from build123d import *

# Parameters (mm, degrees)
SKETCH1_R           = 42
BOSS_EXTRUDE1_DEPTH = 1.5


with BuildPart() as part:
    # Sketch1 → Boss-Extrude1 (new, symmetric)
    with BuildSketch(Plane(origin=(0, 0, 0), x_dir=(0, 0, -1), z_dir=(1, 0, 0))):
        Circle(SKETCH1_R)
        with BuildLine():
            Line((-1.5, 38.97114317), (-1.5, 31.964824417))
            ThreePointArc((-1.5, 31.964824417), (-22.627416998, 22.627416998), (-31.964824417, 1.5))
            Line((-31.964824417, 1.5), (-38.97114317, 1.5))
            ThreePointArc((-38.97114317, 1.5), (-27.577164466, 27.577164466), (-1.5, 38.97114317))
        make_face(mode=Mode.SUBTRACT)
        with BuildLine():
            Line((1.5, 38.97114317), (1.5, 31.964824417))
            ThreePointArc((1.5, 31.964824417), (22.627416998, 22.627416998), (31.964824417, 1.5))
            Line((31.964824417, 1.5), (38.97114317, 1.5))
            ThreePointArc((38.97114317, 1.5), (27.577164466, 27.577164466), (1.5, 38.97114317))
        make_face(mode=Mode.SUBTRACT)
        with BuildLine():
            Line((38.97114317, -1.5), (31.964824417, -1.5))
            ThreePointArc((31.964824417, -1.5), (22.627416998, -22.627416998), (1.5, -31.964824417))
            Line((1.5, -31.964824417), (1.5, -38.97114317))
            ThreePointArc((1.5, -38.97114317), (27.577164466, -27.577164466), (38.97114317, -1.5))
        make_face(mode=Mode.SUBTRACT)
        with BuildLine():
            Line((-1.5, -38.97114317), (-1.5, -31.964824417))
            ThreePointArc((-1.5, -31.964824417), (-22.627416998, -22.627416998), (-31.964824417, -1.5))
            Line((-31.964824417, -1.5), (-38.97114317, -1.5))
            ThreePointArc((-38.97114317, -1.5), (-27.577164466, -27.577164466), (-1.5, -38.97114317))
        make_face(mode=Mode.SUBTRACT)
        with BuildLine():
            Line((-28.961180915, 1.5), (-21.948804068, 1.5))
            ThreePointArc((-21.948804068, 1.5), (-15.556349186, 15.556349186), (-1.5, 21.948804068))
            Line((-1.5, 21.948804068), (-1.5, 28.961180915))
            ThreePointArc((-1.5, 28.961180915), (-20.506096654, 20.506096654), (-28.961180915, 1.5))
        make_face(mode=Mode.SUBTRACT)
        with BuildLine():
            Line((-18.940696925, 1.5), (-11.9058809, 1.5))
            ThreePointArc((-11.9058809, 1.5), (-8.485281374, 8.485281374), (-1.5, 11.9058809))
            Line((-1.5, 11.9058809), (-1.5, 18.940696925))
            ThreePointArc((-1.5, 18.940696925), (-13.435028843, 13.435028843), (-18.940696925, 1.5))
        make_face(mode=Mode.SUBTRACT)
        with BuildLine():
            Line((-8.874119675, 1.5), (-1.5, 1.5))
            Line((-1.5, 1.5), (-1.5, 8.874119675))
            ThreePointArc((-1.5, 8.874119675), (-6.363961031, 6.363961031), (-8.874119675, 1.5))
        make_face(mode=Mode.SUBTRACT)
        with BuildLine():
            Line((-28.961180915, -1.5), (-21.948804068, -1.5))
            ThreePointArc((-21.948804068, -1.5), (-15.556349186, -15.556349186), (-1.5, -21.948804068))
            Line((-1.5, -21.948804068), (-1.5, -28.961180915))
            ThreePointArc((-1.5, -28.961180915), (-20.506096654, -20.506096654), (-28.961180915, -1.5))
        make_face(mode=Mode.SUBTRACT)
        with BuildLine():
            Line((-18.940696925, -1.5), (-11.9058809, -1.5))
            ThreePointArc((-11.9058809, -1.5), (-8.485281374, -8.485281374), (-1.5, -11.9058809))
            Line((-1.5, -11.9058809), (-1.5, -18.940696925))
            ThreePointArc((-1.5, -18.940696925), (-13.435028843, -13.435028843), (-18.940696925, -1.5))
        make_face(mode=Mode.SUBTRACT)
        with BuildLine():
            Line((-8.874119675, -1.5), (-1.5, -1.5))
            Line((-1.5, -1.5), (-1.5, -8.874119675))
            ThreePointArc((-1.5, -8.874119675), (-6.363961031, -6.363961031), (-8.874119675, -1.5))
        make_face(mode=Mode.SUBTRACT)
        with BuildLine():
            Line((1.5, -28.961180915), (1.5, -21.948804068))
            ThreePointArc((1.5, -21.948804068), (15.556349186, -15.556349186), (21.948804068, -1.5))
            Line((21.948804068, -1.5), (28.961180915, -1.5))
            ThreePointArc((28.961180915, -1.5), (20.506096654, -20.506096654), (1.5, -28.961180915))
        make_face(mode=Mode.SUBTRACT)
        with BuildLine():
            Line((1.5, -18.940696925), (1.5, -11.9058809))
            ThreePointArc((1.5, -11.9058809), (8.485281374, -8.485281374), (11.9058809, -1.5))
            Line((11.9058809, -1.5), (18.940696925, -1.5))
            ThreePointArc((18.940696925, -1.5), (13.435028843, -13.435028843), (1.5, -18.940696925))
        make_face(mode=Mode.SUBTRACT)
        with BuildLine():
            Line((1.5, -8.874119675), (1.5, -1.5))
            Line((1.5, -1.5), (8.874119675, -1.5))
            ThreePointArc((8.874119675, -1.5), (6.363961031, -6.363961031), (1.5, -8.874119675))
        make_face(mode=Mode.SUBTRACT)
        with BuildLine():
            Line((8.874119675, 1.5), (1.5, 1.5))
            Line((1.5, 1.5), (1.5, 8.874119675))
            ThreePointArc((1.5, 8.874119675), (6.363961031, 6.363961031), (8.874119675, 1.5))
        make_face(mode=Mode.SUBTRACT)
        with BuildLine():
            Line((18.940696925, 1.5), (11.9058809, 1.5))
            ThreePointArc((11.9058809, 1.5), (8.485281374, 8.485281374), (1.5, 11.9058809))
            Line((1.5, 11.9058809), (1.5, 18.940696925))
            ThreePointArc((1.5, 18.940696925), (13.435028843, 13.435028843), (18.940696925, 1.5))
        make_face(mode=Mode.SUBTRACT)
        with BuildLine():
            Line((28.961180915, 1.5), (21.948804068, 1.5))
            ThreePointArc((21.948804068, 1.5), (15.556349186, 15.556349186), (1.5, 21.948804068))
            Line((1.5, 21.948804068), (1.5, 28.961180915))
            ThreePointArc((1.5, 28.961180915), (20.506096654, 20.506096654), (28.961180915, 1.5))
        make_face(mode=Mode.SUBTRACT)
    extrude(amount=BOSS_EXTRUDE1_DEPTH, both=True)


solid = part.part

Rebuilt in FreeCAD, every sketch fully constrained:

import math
import FreeCAD as App
import Part
import Sketcher

V = App.Vector

doc = App.newDocument("Part")
params = doc.addObject("Spreadsheet::Sheet", "Params")
for row, (alias, value) in enumerate([
    ("sketch1_diameter", "84 mm"),
    ("sketch1_radius", "39 mm"),
    ("sketch1_radius2", "32 mm"),
    ("sketch1_radius3", "29 mm"),
    ("sketch1_radius4", "22 mm"),
    ("pad1_length", "3 mm"),
], start=1):
    params.set(f"A{row}", alias)
    params.set(f"B{row}", "=" + value)
    params.setAlias(f"B{row}", alias)

body = doc.addObject("PartDesign::Body", "Body")

# Sketch on YZ plane
sketch1 = doc.addObject("Sketcher::SketchObject", "Sketch")
body.addObject(sketch1)
sketch1.AttachmentSupport = (doc.YZ_Plane, [""])
sketch1.MapMode = "FlatFace"
sketch1.addGeometry(Part.Circle(V(0, 0, 0), V(0, 0, 1), 42), False)
sketch1.addGeometry(Part.LineSegment(V(-32, 2, 0), V(-39, 2, 0)), False)
sketch1.addGeometry(Part.ArcOfCircle(Part.Circle(V(0, 0, 0), V(0, 0, 1), 39), math.radians(92), math.radians(178)), False)
sketch1.addGeometry(Part.LineSegment(V(-2, 39, 0), V(-2, 32, 0)), False)
sketch1.addGeometry(Part.ArcOfCircle(Part.Circle(V(0, 0, 0), V(0, 0, 1), 32), math.radians(93), math.radians(177)), False)
sketch1.addGeometry(Part.ArcOfCircle(Part.Circle(V(0, 0, 0), V(0, 0, 1), 29), math.radians(93), math.radians(177)), False)
sketch1.addGeometry(Part.LineSegment(V(-2, 29, 0), V(-2, 22, 0)), False)
sketch1.addGeometry(Part.ArcOfCircle(Part.Circle(V(0, 0, 0), V(0, 0, 1), 22), math.radians(94), math.radians(176)), False)
sketch1.addGeometry(Part.LineSegment(V(-22, 2, 0), V(-29, 2, 0)), False)
sketch1.addGeometry(Part.ArcOfCircle(Part.Circle(V(0, 0, 0), V(0, 0, 1), 19), math.radians(95), math.radians(175)), False)
sketch1.addGeometry(Part.LineSegment(V(-2, 19, 0), V(-2, 12, 0)), False)
sketch1.addGeometry(Part.ArcOfCircle(Part.Circle(V(0, 0, 0), V(0, 0, 1), 12), math.radians(97), math.radians(173)), False)
sketch1.addGeometry(Part.LineSegment(V(-12, 2, 0), V(-19, 2, 0)), False)
sketch1.addGeometry(Part.ArcOfCircle(Part.Circle(V(0, 0, 0), V(0, 0, 1), 9), math.radians(100), math.radians(170)), False)
sketch1.addGeometry(Part.LineSegment(V(-2, 9, 0), V(-2, 2, 0)), False)
sketch1.addGeometry(Part.LineSegment(V(-2, 2, 0), V(-9, 2, 0)), False)
sketch1.addGeometry(Part.LineSegment(V(-2, -32, 0), V(-2, -39, 0)), False)
sketch1.addGeometry(Part.ArcOfCircle(Part.Circle(V(0, 0, 0), V(0, 0, 1), 39), math.radians(-178), math.radians(-92)), False)
sketch1.addGeometry(Part.LineSegment(V(-39, -2, 0), V(-32, -2, 0)), False)
sketch1.addGeometry(Part.ArcOfCircle(Part.Circle(V(0, 0, 0), V(0, 0, 1), 32), math.radians(-177), math.radians(-93)), False)
sketch1.addGeometry(Part.ArcOfCircle(Part.Circle(V(0, 0, 0), V(0, 0, 1), 29), math.radians(-177), math.radians(-93)), False)
sketch1.addGeometry(Part.LineSegment(V(-29, -2, 0), V(-22, -2, 0)), False)
sketch1.addGeometry(Part.ArcOfCircle(Part.Circle(V(0, 0, 0), V(0, 0, 1), 22), math.radians(-176), math.radians(-94)), False)
sketch1.addGeometry(Part.LineSegment(V(-2, -22, 0), V(-2, -29, 0)), False)
sketch1.addGeometry(Part.ArcOfCircle(Part.Circle(V(0, 0, 0), V(0, 0, 1), 19), math.radians(-175), math.radians(-95)), False)
sketch1.addGeometry(Part.LineSegment(V(-19, -2, 0), V(-12, -2, 0)), False)
sketch1.addGeometry(Part.ArcOfCircle(Part.Circle(V(0, 0, 0), V(0, 0, 1), 12), math.radians(-173), math.radians(-97)), False)
sketch1.addGeometry(Part.LineSegment(V(-2, -12, 0), V(-2, -19, 0)), False)
sketch1.addGeometry(Part.ArcOfCircle(Part.Circle(V(0, 0, 0), V(0, 0, 1), 9), math.radians(-170), math.radians(-100)), False)
sketch1.addGeometry(Part.LineSegment(V(-9, -2, 0), V(-2, -2, 0)), False)
sketch1.addGeometry(Part.LineSegment(V(-2, -2, 0), V(-2, -9, 0)), False)
sketch1.addGeometry(Part.LineSegment(V(2, 2, 0), V(2, 9, 0)), False)
sketch1.addGeometry(Part.ArcOfCircle(Part.Circle(V(0, 0, 0), V(0, 0, 1), 9), math.radians(10), math.radians(80)), False)
sketch1.addGeometry(Part.LineSegment(V(9, 2, 0), V(2, 2, 0)), False)
sketch1.addGeometry(Part.LineSegment(V(2, 12, 0), V(2, 19, 0)), False)
sketch1.addGeometry(Part.ArcOfCircle(Part.Circle(V(0, 0, 0), V(0, 0, 1), 19), math.radians(5), math.radians(85)), False)
sketch1.addGeometry(Part.LineSegment(V(19, 2, 0), V(12, 2, 0)), False)
sketch1.addGeometry(Part.ArcOfCircle(Part.Circle(V(0, 0, 0), V(0, 0, 1), 12), math.radians(7), math.radians(83)), False)
sketch1.addGeometry(Part.LineSegment(V(2, 22, 0), V(2, 29, 0)), False)
sketch1.addGeometry(Part.ArcOfCircle(Part.Circle(V(0, 0, 0), V(0, 0, 1), 29), math.radians(3), math.radians(87)), False)
sketch1.addGeometry(Part.LineSegment(V(29, 2, 0), V(22, 2, 0)), False)
sketch1.addGeometry(Part.ArcOfCircle(Part.Circle(V(0, 0, 0), V(0, 0, 1), 22), math.radians(4), math.radians(86)), False)
sketch1.addGeometry(Part.ArcOfCircle(Part.Circle(V(0, 0, 0), V(0, 0, 1), 39), math.radians(2), math.radians(88)), False)
sketch1.addGeometry(Part.LineSegment(V(39, 2, 0), V(32, 2, 0)), False)
sketch1.addGeometry(Part.ArcOfCircle(Part.Circle(V(0, 0, 0), V(0, 0, 1), 32), math.radians(3), math.radians(87)), False)
sketch1.addGeometry(Part.LineSegment(V(2, 32, 0), V(2, 39, 0)), False)
sketch1.addGeometry(Part.ArcOfCircle(Part.Circle(V(0, 0, 0), V(0, 0, 1), 9), math.radians(-80), math.radians(-10)), False)
sketch1.addGeometry(Part.LineSegment(V(2, -9, 0), V(2, -2, 0)), False)
sketch1.addGeometry(Part.LineSegment(V(2, -2, 0), V(9, -2, 0)), False)
sketch1.addGeometry(Part.ArcOfCircle(Part.Circle(V(0, 0, 0), V(0, 0, 1), 19), math.radians(-85), math.radians(-5)), False)
sketch1.addGeometry(Part.LineSegment(V(2, -19, 0), V(2, -12, 0)), False)
sketch1.addGeometry(Part.ArcOfCircle(Part.Circle(V(0, 0, 0), V(0, 0, 1), 12), math.radians(-83), math.radians(-7)), False)
sketch1.addGeometry(Part.LineSegment(V(12, -2, 0), V(19, -2, 0)), False)
sketch1.addGeometry(Part.ArcOfCircle(Part.Circle(V(0, 0, 0), V(0, 0, 1), 29), math.radians(-87), math.radians(-3)), False)
sketch1.addGeometry(Part.LineSegment(V(2, -29, 0), V(2, -22, 0)), False)
sketch1.addGeometry(Part.ArcOfCircle(Part.Circle(V(0, 0, 0), V(0, 0, 1), 22), math.radians(-86), math.radians(-4)), False)
sketch1.addGeometry(Part.LineSegment(V(22, -2, 0), V(29, -2, 0)), False)
sketch1.addGeometry(Part.LineSegment(V(32, -2, 0), V(39, -2, 0)), False)
sketch1.addGeometry(Part.ArcOfCircle(Part.Circle(V(0, 0, 0), V(0, 0, 1), 39), math.radians(-88), math.radians(-2)), False)
sketch1.addGeometry(Part.LineSegment(V(2, -39, 0), V(2, -32, 0)), False)
sketch1.addGeometry(Part.ArcOfCircle(Part.Circle(V(0, 0, 0), V(0, 0, 1), 32), math.radians(-87), math.radians(-3)), False)
sketch1.addConstraint(Sketcher.Constraint("Coincident", 1, 2, 2, 2))
sketch1.addConstraint(Sketcher.Constraint("Coincident", 2, 1, 3, 1))
sketch1.addConstraint(Sketcher.Constraint("Coincident", 3, 2, 4, 1))
sketch1.addConstraint(Sketcher.Constraint("Coincident", 4, 2, 1, 1))
sketch1.addConstraint(Sketcher.Constraint("Coincident", 5, 1, 6, 1))
sketch1.addConstraint(Sketcher.Constraint("Coincident", 6, 2, 7, 1))
sketch1.addConstraint(Sketcher.Constraint("Coincident", 7, 2, 8, 1))
sketch1.addConstraint(Sketcher.Constraint("Coincident", 8, 2, 5, 2))
sketch1.addConstraint(Sketcher.Constraint("Coincident", 9, 1, 10, 1))
sketch1.addConstraint(Sketcher.Constraint("Coincident", 10, 2, 11, 1))
sketch1.addConstraint(Sketcher.Constraint("Coincident", 11, 2, 12, 1))
sketch1.addConstraint(Sketcher.Constraint("Coincident", 12, 2, 9, 2))
sketch1.addConstraint(Sketcher.Constraint("Coincident", 13, 1, 14, 1))
sketch1.addConstraint(Sketcher.Constraint("Coincident", 14, 2, 15, 1))
sketch1.addConstraint(Sketcher.Constraint("Coincident", 15, 2, 13, 2))
sketch1.addConstraint(Sketcher.Constraint("Coincident", 16, 2, 17, 2))
sketch1.addConstraint(Sketcher.Constraint("Coincident", 17, 1, 18, 1))
sketch1.addConstraint(Sketcher.Constraint("Coincident", 18, 2, 19, 1))
sketch1.addConstraint(Sketcher.Constraint("Coincident", 19, 2, 16, 1))
sketch1.addConstraint(Sketcher.Constraint("Coincident", 20, 1, 21, 1))
sketch1.addConstraint(Sketcher.Constraint("Coincident", 21, 2, 22, 1))
sketch1.addConstraint(Sketcher.Constraint("Coincident", 22, 2, 23, 1))
sketch1.addConstraint(Sketcher.Constraint("Coincident", 23, 2, 20, 2))
sketch1.addConstraint(Sketcher.Constraint("Coincident", 24, 1, 25, 1))
sketch1.addConstraint(Sketcher.Constraint("Coincident", 25, 2, 26, 1))
sketch1.addConstraint(Sketcher.Constraint("Coincident", 26, 2, 27, 1))
sketch1.addConstraint(Sketcher.Constraint("Coincident", 27, 2, 24, 2))
sketch1.addConstraint(Sketcher.Constraint("Coincident", 28, 1, 29, 1))
sketch1.addConstraint(Sketcher.Constraint("Coincident", 29, 2, 30, 1))
sketch1.addConstraint(Sketcher.Constraint("Coincident", 30, 2, 28, 2))
sketch1.addConstraint(Sketcher.Constraint("Coincident", 31, 2, 32, 2))
sketch1.addConstraint(Sketcher.Constraint("Coincident", 32, 1, 33, 1))
sketch1.addConstraint(Sketcher.Constraint("Coincident", 33, 2, 31, 1))
sketch1.addConstraint(Sketcher.Constraint("Coincident", 34, 2, 35, 2))
sketch1.addConstraint(Sketcher.Constraint("Coincident", 35, 1, 36, 1))
sketch1.addConstraint(Sketcher.Constraint("Coincident", 36, 2, 37, 1))
sketch1.addConstraint(Sketcher.Constraint("Coincident", 37, 2, 34, 1))
sketch1.addConstraint(Sketcher.Constraint("Coincident", 38, 2, 39, 2))
sketch1.addConstraint(Sketcher.Constraint("Coincident", 39, 1, 40, 1))
sketch1.addConstraint(Sketcher.Constraint("Coincident", 40, 2, 41, 1))
sketch1.addConstraint(Sketcher.Constraint("Coincident", 41, 2, 38, 1))
sketch1.addConstraint(Sketcher.Constraint("Coincident", 42, 1, 43, 1))
sketch1.addConstraint(Sketcher.Constraint("Coincident", 43, 2, 44, 1))
sketch1.addConstraint(Sketcher.Constraint("Coincident", 44, 2, 45, 1))
sketch1.addConstraint(Sketcher.Constraint("Coincident", 45, 2, 42, 2))
sketch1.addConstraint(Sketcher.Constraint("Coincident", 46, 1, 47, 1))
sketch1.addConstraint(Sketcher.Constraint("Coincident", 47, 2, 48, 1))
sketch1.addConstraint(Sketcher.Constraint("Coincident", 48, 2, 46, 2))
sketch1.addConstraint(Sketcher.Constraint("Coincident", 49, 1, 50, 1))
sketch1.addConstraint(Sketcher.Constraint("Coincident", 50, 2, 51, 1))
sketch1.addConstraint(Sketcher.Constraint("Coincident", 51, 2, 52, 1))
sketch1.addConstraint(Sketcher.Constraint("Coincident", 52, 2, 49, 2))
sketch1.addConstraint(Sketcher.Constraint("Coincident", 53, 1, 54, 1))
sketch1.addConstraint(Sketcher.Constraint("Coincident", 54, 2, 55, 1))
sketch1.addConstraint(Sketcher.Constraint("Coincident", 55, 2, 56, 1))
sketch1.addConstraint(Sketcher.Constraint("Coincident", 56, 2, 53, 2))
sketch1.addConstraint(Sketcher.Constraint("Coincident", 57, 2, 58, 2))
sketch1.addConstraint(Sketcher.Constraint("Coincident", 58, 1, 59, 1))
sketch1.addConstraint(Sketcher.Constraint("Coincident", 59, 2, 60, 1))
sketch1.addConstraint(Sketcher.Constraint("Coincident", 60, 2, 57, 1))
sketch1.addConstraint(Sketcher.Constraint("Horizontal", 1))
sketch1.addConstraint(Sketcher.Constraint("Vertical", 3))
sketch1.addConstraint(Sketcher.Constraint("Vertical", 6))
sketch1.addConstraint(Sketcher.Constraint("Horizontal", 8))
sketch1.addConstraint(Sketcher.Constraint("Vertical", 10))
sketch1.addConstraint(Sketcher.Constraint("Horizontal", 12))
sketch1.addConstraint(Sketcher.Constraint("Vertical", 14))
sketch1.addConstraint(Sketcher.Constraint("Horizontal", 15))
sketch1.addConstraint(Sketcher.Constraint("Vertical", 16))
sketch1.addConstraint(Sketcher.Constraint("Horizontal", 18))
sketch1.addConstraint(Sketcher.Constraint("Horizontal", 21))
sketch1.addConstraint(Sketcher.Constraint("Vertical", 23))
sketch1.addConstraint(Sketcher.Constraint("Horizontal", 25))
sketch1.addConstraint(Sketcher.Constraint("Vertical", 27))
sketch1.addConstraint(Sketcher.Constraint("Horizontal", 29))
sketch1.addConstraint(Sketcher.Constraint("Vertical", 30))
sketch1.addConstraint(Sketcher.Constraint("Vertical", 31))
sketch1.addConstraint(Sketcher.Constraint("Horizontal", 33))
sketch1.addConstraint(Sketcher.Constraint("Vertical", 34))
sketch1.addConstraint(Sketcher.Constraint("Horizontal", 36))
sketch1.addConstraint(Sketcher.Constraint("Vertical", 38))
sketch1.addConstraint(Sketcher.Constraint("Horizontal", 40))
sketch1.addConstraint(Sketcher.Constraint("Horizontal", 43))
sketch1.addConstraint(Sketcher.Constraint("Vertical", 45))
sketch1.addConstraint(Sketcher.Constraint("Vertical", 47))
sketch1.addConstraint(Sketcher.Constraint("Horizontal", 48))
sketch1.addConstraint(Sketcher.Constraint("Vertical", 50))
sketch1.addConstraint(Sketcher.Constraint("Horizontal", 52))
sketch1.addConstraint(Sketcher.Constraint("Vertical", 54))
sketch1.addConstraint(Sketcher.Constraint("Horizontal", 56))
sketch1.addConstraint(Sketcher.Constraint("Horizontal", 57))
sketch1.addConstraint(Sketcher.Constraint("Vertical", 59))
sketch1.addConstraint(Sketcher.Constraint("Coincident", 0, 3, -1, 1))
sketch1.addConstraint(Sketcher.Constraint("Coincident", 2, 3, -1, 1))
sketch1.addConstraint(Sketcher.Constraint("Coincident", 4, 3, -1, 1))
sketch1.addConstraint(Sketcher.Constraint("Coincident", 5, 3, -1, 1))
sketch1.addConstraint(Sketcher.Constraint("Coincident", 7, 3, -1, 1))
sketch1.addConstraint(Sketcher.Constraint("Coincident", 9, 3, -1, 1))
sketch1.addConstraint(Sketcher.Constraint("Coincident", 11, 3, -1, 1))
sketch1.addConstraint(Sketcher.Constraint("Coincident", 13, 3, -1, 1))
sketch1.addConstraint(Sketcher.Constraint("Coincident", 17, 3, -1, 1))
sketch1.addConstraint(Sketcher.Constraint("Coincident", 19, 3, -1, 1))
sketch1.addConstraint(Sketcher.Constraint("Coincident", 20, 3, -1, 1))
sketch1.addConstraint(Sketcher.Constraint("Coincident", 22, 3, -1, 1))
sketch1.addConstraint(Sketcher.Constraint("Coincident", 24, 3, -1, 1))
sketch1.addConstraint(Sketcher.Constraint("Coincident", 26, 3, -1, 1))
sketch1.addConstraint(Sketcher.Constraint("Coincident", 28, 3, -1, 1))
sketch1.addConstraint(Sketcher.Constraint("Coincident", 32, 3, -1, 1))
sketch1.addConstraint(Sketcher.Constraint("Coincident", 35, 3, -1, 1))
sketch1.addConstraint(Sketcher.Constraint("Coincident", 37, 3, -1, 1))
sketch1.addConstraint(Sketcher.Constraint("Coincident", 39, 3, -1, 1))
sketch1.addConstraint(Sketcher.Constraint("Coincident", 41, 3, -1, 1))
sketch1.addConstraint(Sketcher.Constraint("Coincident", 42, 3, -1, 1))
sketch1.addConstraint(Sketcher.Constraint("Coincident", 44, 3, -1, 1))
sketch1.addConstraint(Sketcher.Constraint("Coincident", 46, 3, -1, 1))
sketch1.addConstraint(Sketcher.Constraint("Coincident", 49, 3, -1, 1))
sketch1.addConstraint(Sketcher.Constraint("Coincident", 51, 3, -1, 1))
sketch1.addConstraint(Sketcher.Constraint("Coincident", 53, 3, -1, 1))
sketch1.addConstraint(Sketcher.Constraint("Coincident", 55, 3, -1, 1))
sketch1.addConstraint(Sketcher.Constraint("Coincident", 58, 3, -1, 1))
sketch1.addConstraint(Sketcher.Constraint("Coincident", 60, 3, -1, 1))
sketch1.addConstraint(Sketcher.Constraint("Equal", 2, 17))
sketch1.addConstraint(Sketcher.Constraint("Equal", 4, 19))
sketch1.addConstraint(Sketcher.Constraint("Equal", 5, 20))
sketch1.addConstraint(Sketcher.Constraint("Equal", 7, 22))
sketch1.addConstraint(Sketcher.Constraint("Equal", 9, 24))
sketch1.addConstraint(Sketcher.Constraint("Equal", 11, 26))
sketch1.addConstraint(Sketcher.Constraint("Equal", 13, 28))
sketch1.addConstraint(Sketcher.Constraint("Equal", 28, 32))
sketch1.addConstraint(Sketcher.Constraint("Equal", 24, 35))
sketch1.addConstraint(Sketcher.Constraint("Equal", 26, 37))
sketch1.addConstraint(Sketcher.Constraint("Equal", 20, 39))
sketch1.addConstraint(Sketcher.Constraint("Equal", 22, 41))
sketch1.addConstraint(Sketcher.Constraint("Equal", 17, 42))
sketch1.addConstraint(Sketcher.Constraint("Equal", 19, 44))
sketch1.addConstraint(Sketcher.Constraint("Equal", 32, 46))
sketch1.addConstraint(Sketcher.Constraint("Equal", 35, 49))
sketch1.addConstraint(Sketcher.Constraint("Equal", 37, 51))
sketch1.addConstraint(Sketcher.Constraint("Equal", 39, 53))
sketch1.addConstraint(Sketcher.Constraint("Equal", 41, 55))
sketch1.addConstraint(Sketcher.Constraint("Equal", 42, 58))
sketch1.addConstraint(Sketcher.Constraint("Equal", 44, 60))
sketch1.addConstraint(Sketcher.Constraint("Symmetric", 29, 2, 33, 2, -1, 1))
sketch1.addConstraint(Sketcher.Constraint("Symmetric", 14, 2, 47, 2, -1, 1))
sketch1.addConstraint(Sketcher.Constraint("Symmetric", 14, 2, 33, 2, -2))
sketch1.addConstraint(Sketcher.Constraint("Horizontal", 4, 2, 7, 2))
sketch1.addConstraint(Sketcher.Constraint("Horizontal", 8, 2, 11, 2))
sketch1.addConstraint(Sketcher.Constraint("Horizontal", 12, 2, 14, 2))
sketch1.addConstraint(Sketcher.Constraint("Horizontal", 18, 2, 20, 1))
sketch1.addConstraint(Sketcher.Constraint("Horizontal", 21, 2, 24, 1))
sketch1.addConstraint(Sketcher.Constraint("Horizontal", 25, 2, 28, 1))
sketch1.addConstraint(Sketcher.Constraint("Horizontal", 9, 1, 34, 2))
sketch1.addConstraint(Sketcher.Constraint("Horizontal", 33, 2, 35, 1))
sketch1.addConstraint(Sketcher.Constraint("Horizontal", 5, 1, 38, 2))
sketch1.addConstraint(Sketcher.Constraint("Horizontal", 36, 2, 39, 1))
sketch1.addConstraint(Sketcher.Constraint("Horizontal", 40, 2, 42, 1))
sketch1.addConstraint(Sketcher.Constraint("Horizontal", 3, 2, 44, 2))
sketch1.addConstraint(Sketcher.Constraint("Horizontal", 27, 2, 49, 1))
sketch1.addConstraint(Sketcher.Constraint("Horizontal", 48, 2, 51, 2))
sketch1.addConstraint(Sketcher.Constraint("Horizontal", 23, 2, 53, 1))
sketch1.addConstraint(Sketcher.Constraint("Horizontal", 52, 2, 55, 2))
sketch1.addConstraint(Sketcher.Constraint("Horizontal", 56, 2, 57, 2))
sketch1.addConstraint(Sketcher.Constraint("Horizontal", 16, 2, 58, 1))
sketch1.addConstraint(Sketcher.Constraint("Vertical", 3, 2, 5, 1))
sketch1.addConstraint(Sketcher.Constraint("Vertical", 6, 2, 9, 1))
sketch1.addConstraint(Sketcher.Constraint("Vertical", 10, 2, 13, 1))
sketch1.addConstraint(Sketcher.Constraint("Vertical", 14, 2, 16, 2))
sketch1.addConstraint(Sketcher.Constraint("Vertical", 19, 2, 22, 2))
sketch1.addConstraint(Sketcher.Constraint("Vertical", 23, 2, 26, 2))
sketch1.addConstraint(Sketcher.Constraint("Equal", 52, 10))
sketch1.addConstraint(Sketcher.Constraint("Diameter", 0, 84.0))
sketch1.addConstraint(Sketcher.Constraint("Radius", 2, 39.0))
sketch1.addConstraint(Sketcher.Constraint("Radius", 4, 32.0))
sketch1.addConstraint(Sketcher.Constraint("Radius", 5, 29.0))
sketch1.addConstraint(Sketcher.Constraint("Radius", 7, 22.0))
sketch1.addConstraint(Sketcher.Constraint("Radius", 9, 19.0))
sketch1.addConstraint(Sketcher.Constraint("Radius", 11, 12.0))
sketch1.addConstraint(Sketcher.Constraint("Radius", 13, 9.0))
sketch1.addConstraint(Sketcher.Constraint("DistanceY", -1, 1, 1, 2, 1.5))
sketch1.setExpression("Constraints[170]", "Params.sketch1_diameter")
sketch1.setExpression("Constraints[171]", "Params.sketch1_radius")
sketch1.setExpression("Constraints[172]", "Params.sketch1_radius2")
sketch1.setExpression("Constraints[173]", "Params.sketch1_radius3")
sketch1.setExpression("Constraints[174]", "Params.sketch1_radius4")
pad1 = doc.addObject("PartDesign::Pad", "Pad")
body.addObject(pad1)
pad1.Profile = sketch1
pad1.setExpression("Length", "Params.pad1_length")
pad1.Midplane = True

doc.recompute()
